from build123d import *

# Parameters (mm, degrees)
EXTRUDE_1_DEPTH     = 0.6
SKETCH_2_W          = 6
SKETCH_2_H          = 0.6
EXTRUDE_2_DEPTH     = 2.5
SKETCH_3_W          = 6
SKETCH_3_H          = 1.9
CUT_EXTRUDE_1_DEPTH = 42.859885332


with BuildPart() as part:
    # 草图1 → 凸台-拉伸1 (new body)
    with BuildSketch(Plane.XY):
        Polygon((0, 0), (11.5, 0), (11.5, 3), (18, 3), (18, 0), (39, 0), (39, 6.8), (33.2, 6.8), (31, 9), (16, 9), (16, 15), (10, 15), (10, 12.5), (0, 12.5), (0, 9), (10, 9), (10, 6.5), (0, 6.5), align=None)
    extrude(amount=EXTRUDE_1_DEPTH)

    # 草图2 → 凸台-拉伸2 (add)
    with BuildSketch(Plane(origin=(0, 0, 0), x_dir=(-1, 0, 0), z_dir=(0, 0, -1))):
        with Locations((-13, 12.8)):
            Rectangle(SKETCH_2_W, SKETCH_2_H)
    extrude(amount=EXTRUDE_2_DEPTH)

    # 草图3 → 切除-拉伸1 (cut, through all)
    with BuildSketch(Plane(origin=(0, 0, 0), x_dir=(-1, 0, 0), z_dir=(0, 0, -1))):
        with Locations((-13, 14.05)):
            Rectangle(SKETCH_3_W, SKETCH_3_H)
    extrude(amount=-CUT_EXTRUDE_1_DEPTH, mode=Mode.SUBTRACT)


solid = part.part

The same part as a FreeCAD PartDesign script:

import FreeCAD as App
import Part
import Sketcher

V = App.Vector
Q = App.Units.Quantity


def add_polygon(sketch, points):
    """Adds a closed chain of lines whose ends are joined by coincident constraints."""
    first, n = sketch.GeometryCount, len(points)
    for a, b in zip(points, points[1:] + points[:1]):
        sketch.addGeometry(Part.LineSegment(App.Vector(*a, 0), App.Vector(*b, 0)), False)
    for i in range(n):
        sketch.addConstraint(Sketcher.Constraint("Coincident", first + i, 2, first + (i + 1) % n, 1))

doc = App.newDocument("Part")
params = doc.addObject("Spreadsheet::Sheet", "Params")
for row, (alias, value) in enumerate([
    ("sketch1_width", "21 mm"),
    ("sketch1_width2", "15 mm"),
    ("sketch1_width3", "6 mm"),
    ("sketch1_width4", "10 mm"),
    ("sketch1_height", "3 mm"),
    ("pad1_length", "0.6 mm"),
    ("sketch2_width", "6 mm"),
    ("sketch2_height", "0.6 mm"),
    ("pad2_length", "2.5 mm"),
    ("sketch3_width", "6 mm"),
    ("sketch3_height", "1.9 mm"),
], start=1):
    params.set(f"A{row}", alias)
    params.set(f"B{row}", "=" + value)
    params.setAlias(f"B{row}", alias)

body = doc.addObject("PartDesign::Body", "Body")

# Sketch on XY plane
sketch1 = body.newObject("Sketcher::SketchObject", "Sketch")
sketch1.AttachmentSupport = (doc.getObject("XY_Plane"), [""])
sketch1.MapMode = "FlatFace"
add_polygon(sketch1, [(0, 0), (11.5, 0), (11.5, 3), (18, 3), (18, 0), (39, 0), (39, 6.8), (33.2, 6.8), (31, 9), (16, 9), (16, 15), (10, 15), (10, 12.5), (0, 12.5), (0, 9), (10, 9), (10, 6.5), (0, 6.5)])  # lines 0-17
sketch1.addConstraint(Sketcher.Constraint("Horizontal", 0))
sketch1.addConstraint(Sketcher.Constraint("Vertical", 1))
sketch1.addConstraint(Sketcher.Constraint("Horizontal", 2))
sketch1.addConstraint(Sketcher.Constraint("Vertical", 3))
sketch1.addConstraint(Sketcher.Constraint("Horizontal", 4))
sketch1.addConstraint(Sketcher.Constraint("Vertical", 5))
sketch1.addConstraint(Sketcher.Constraint("Horizontal", 6))
sketch1.addConstraint(Sketcher.Constraint("Horizontal", 8))
sketch1.addConstraint(Sketcher.Constraint("Vertical", 9))
sketch1.addConstraint(Sketcher.Constraint("Horizontal", 10))
sketch1.addConstraint(Sketcher.Constraint("Vertical", 11))
sketch1.addConstraint(Sketcher.Constraint("Horizontal", 12))
sketch1.addConstraint(Sketcher.Constraint("Vertical", 13))
sketch1.addConstraint(Sketcher.Constraint("Horizontal", 14))
sketch1.addConstraint(Sketcher.Constraint("Vertical", 15))
sketch1.addConstraint(Sketcher.Constraint("Horizontal", 16))
sketch1.addConstraint(Sketcher.Constraint("Vertical", 17))
sketch1.addConstraint(Sketcher.Constraint("Coincident", 17, 2, -1, 1))
sketch1.addConstraint(Sketcher.Constraint("PointOnObject", 3, 2, -1))
sketch1.addConstraint(Sketcher.Constraint("PointOnObject", 12, 2, -2))
sketch1.addConstraint(Sketcher.Constraint("Horizontal", 8, 2, 13, 2))
sketch1.addConstraint(Sketcher.Constraint("Vertical", 11, 2, 14, 2))
sketch1.addConstraint(Sketcher.Constraint("Equal", 10, 9))
sketch1.addConstraint(Sketcher.Constraint("Equal", 11, 15))
sketch1.addConstraint(Sketcher.Constraint("Equal", 2, 17))
sketch1.addConstraint(Sketcher.Constraint("DistanceX", 4, 1, 4, 2, Q("21 mm")))
sketch1.addConstraint(Sketcher.Constraint("DistanceX", 8, 2, 8, 1, Q("15 mm")))
sketch1.addConstraint(Sketcher.Constraint("DistanceX", 10, 2, 10, 1, Q("6 mm")))
sketch1.addConstraint(Sketcher.Constraint("DistanceX", 12, 2, 12, 1, Q("10 mm")))
sketch1.addConstraint(Sketcher.Constraint("DistanceY", 1, 1, 1, 2, Q("3 mm")))
sketch1.addConstraint(Sketcher.Constraint("Angle", 7, Q("135 deg")))
sketch1.addConstraint(Sketcher.Constraint("DistanceX", 0, 1, 0, 2, Q("11.5 mm")))
sketch1.addConstraint(Sketcher.Constraint("DistanceX", 2, 1, 2, 2, Q("6.5 mm")))
sketch1.addConstraint(Sketcher.Constraint("DistanceX", 6, 2, 6, 1, Q("5.8 mm")))
sketch1.addConstraint(Sketcher.Constraint("DistanceY", 5, 1, 5, 2, Q("6.8 mm")))
sketch1.setExpression("Constraints[43]", "Params.sketch1_width")
sketch1.setExpression("Constraints[44]", "Params.sketch1_width2")
sketch1.setExpression("Constraints[45]", "Params.sketch1_width3")
sketch1.setExpression("Constraints[46]", "Params.sketch1_width4")
sketch1.setExpression("Constraints[47]", "Params.sketch1_height")
pad1 = body.newObject("PartDesign::Pad", "Pad")
pad1.Profile = sketch1
pad1.setExpression("Length", "Params.pad1_length")

# Sketch on XY plane
sketch2 = body.newObject("Sketcher::SketchObject", "Sketch001")
sketch2.AttachmentSupport = (doc.getObject("XY_Plane"), [""])
sketch2.MapMode = "FlatFace"
add_polygon(sketch2, [(16, 13.1), (16, 12.5), (10, 12.5), (10, 13.1)])  # lines 0-3
sketch2.addConstraint(Sketcher.Constraint("Vertical", 0))
sketch2.addConstraint(Sketcher.Constraint("Horizontal", 1))
sketch2.addConstraint(Sketcher.Constraint("Vertical", 2))
sketch2.addConstraint(Sketcher.Constraint("Horizontal", 3))
sketch2.addConstraint(Sketcher.Constraint("DistanceX", 1, 2, 1, 1, Q("6 mm")))
sketch2.addConstraint(Sketcher.Constraint("DistanceY", 0, 2, 0, 1, Q("0.6 mm")))
sketch2.addConstraint(Sketcher.Constraint("DistanceX", -1, 1, 0, 2, Q("16 mm")))
sketch2.addConstraint(Sketcher.Constraint("DistanceY", -1, 1, 0, 2, Q("12.5 mm")))
sketch2.setExpression("Constraints[8]", "Params.sketch2_width")
sketch2.setExpression("Constraints[9]", "Params.sketch2_height")
pad2 = body.newObject("PartDesign::Pad", "Pad001")
pad2.Profile = sketch2
pad2.setExpression("Length", "Params.pad2_length")
pad2.Reversed = True

# Sketch on XY plane
sketch3 = body.newObject("Sketcher::SketchObject", "Sketch002")
sketch3.AttachmentSupport = (doc.getObject("XY_Plane"), [""])
sketch3.MapMode = "FlatFace"
add_polygon(sketch3, [(16, 15), (16, 13.1), (10, 13.1), (10, 15)])  # lines 0-3
sketch3.addConstraint(Sketcher.Constraint("Vertical", 0))
sketch3.addConstraint(Sketcher.Constraint("Horizontal", 1))
sketch3.addConstraint(Sketcher.Constraint("Vertical", 2))
sketch3.addConstraint(Sketcher.Constraint("Horizontal", 3))
sketch3.addConstraint(Sketcher.Constraint("DistanceX", 1, 2, 1, 1, Q("6 mm")))
sketch3.addConstraint(Sketcher.Constraint("DistanceY", 0, 2, 0, 1, Q("1.9 mm")))
sketch3.addConstraint(Sketcher.Constraint("DistanceX", -1, 1, 0, 2, Q("16 mm")))
sketch3.addConstraint(Sketcher.Constraint("DistanceY", -1, 1, 2, 2, Q("15 mm")))
sketch3.setExpression("Constraints[8]", "Params.sketch3_width")
sketch3.setExpression("Constraints[9]", "Params.sketch3_height")
pocket1 = body.newObject("PartDesign::Pocket", "Pocket")
pocket1.Profile = sketch3
pocket1.Type = "ThroughAll"
pocket1.Reversed = True

doc.recompute()
